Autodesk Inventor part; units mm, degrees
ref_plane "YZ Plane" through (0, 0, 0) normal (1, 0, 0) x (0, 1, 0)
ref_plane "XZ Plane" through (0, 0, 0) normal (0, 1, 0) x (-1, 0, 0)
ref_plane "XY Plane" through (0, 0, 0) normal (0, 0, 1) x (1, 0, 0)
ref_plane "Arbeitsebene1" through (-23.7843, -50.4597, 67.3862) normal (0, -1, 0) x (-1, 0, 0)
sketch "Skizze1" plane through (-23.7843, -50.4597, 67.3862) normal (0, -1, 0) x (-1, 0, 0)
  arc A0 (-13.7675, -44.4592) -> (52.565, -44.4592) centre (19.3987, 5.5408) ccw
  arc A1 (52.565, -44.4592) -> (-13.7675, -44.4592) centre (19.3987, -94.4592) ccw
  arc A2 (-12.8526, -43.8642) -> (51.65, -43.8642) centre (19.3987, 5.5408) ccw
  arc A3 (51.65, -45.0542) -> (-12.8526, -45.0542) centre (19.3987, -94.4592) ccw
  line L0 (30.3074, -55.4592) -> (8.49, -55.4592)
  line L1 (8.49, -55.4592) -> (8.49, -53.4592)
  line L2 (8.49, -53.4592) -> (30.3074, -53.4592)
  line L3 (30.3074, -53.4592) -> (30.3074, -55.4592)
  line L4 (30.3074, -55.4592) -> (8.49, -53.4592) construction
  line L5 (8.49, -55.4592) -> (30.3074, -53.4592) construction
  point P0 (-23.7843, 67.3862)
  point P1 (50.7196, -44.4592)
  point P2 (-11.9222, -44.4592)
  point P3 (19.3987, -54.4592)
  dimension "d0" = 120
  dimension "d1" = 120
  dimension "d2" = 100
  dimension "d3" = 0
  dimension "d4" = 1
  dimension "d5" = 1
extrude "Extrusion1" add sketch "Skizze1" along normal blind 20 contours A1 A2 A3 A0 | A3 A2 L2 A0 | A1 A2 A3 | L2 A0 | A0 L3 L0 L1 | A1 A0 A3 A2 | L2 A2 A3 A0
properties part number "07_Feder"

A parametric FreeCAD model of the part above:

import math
import FreeCAD as App
import Part
import Sketcher

V = App.Vector
Q = App.Units.Quantity

doc = App.newDocument("Part")
body = doc.addObject("PartDesign::Body", "Body")

sketch1 = doc.addObject("Sketcher::SketchObject", "Sketch")
body.addObject(sketch1)
sketch1.AttachmentSupport = (doc.XZ_Plane, [""])
sketch1.MapMode = "FlatFace"
sketch1.AttachmentOffset = App.Placement(V(0, 0, 50.4597), App.Rotation())
sketch1.addGeometry([
    Part.ArcOfCircle(Part.Circle(V(-43.183, 61.8454, 0), V(0, 0, 1), 59.999974), math.radians(56.442728), math.radians(79.524698)),
    Part.LineSegment(V(-32.2743, 120.8454, 0), V(-32.2743, 122.8454, 0)),
    Part.LineSegment(V(-32.2743, 122.8454, 0), V(-54.0917, 122.8454, 0)),
    Part.LineSegment(V(-54.0917, 122.8454, 0), V(-54.0917, 120.8454, 0)),
    Part.ArcOfCircle(Part.Circle(V(-43.183, 61.8454, 0), V(0, 0, 1), 59.999974), math.radians(100.475302), math.radians(123.557351)),
    Part.ArcOfCircle(Part.Circle(V(-43.183, 161.8454, 0), V(0, 0, 1), 60.000029), math.radians(-123.557351), math.radians(-56.442728)),
    Part.ArcOfCircle(Part.Circle(V(-43.183, 161.8454, 0), V(0, 0, 1), 59.000003), math.radians(-122.063791), math.radians(-57.936209)),
    Part.ArcOfCircle(Part.Circle(V(-43.183, 61.8454, 0), V(0, 0, 1), 59.000003), math.radians(57.936209), math.radians(122.063791)),
], False)
sketch1.addConstraint([
    Sketcher.Constraint("Coincident", 0, 2, 1, 1),
    Sketcher.Constraint("Coincident", 1, 2, 2, 1),
    Sketcher.Constraint("Coincident", 2, 2, 3, 1),
    Sketcher.Constraint("Coincident", 3, 2, 4, 1),
    Sketcher.Constraint("Coincident", 4, 2, 5, 1),
    Sketcher.Constraint("Coincident", 5, 2, 0, 1),
    Sketcher.Constraint("Coincident", 6, 1, 7, 2),
    Sketcher.Constraint("Coincident", 7, 1, 6, 2),
    Sketcher.Constraint("Vertical", 1),
    Sketcher.Constraint("Horizontal", 2),
    Sketcher.Constraint("Vertical", 3),
    Sketcher.Constraint("Coincident", 4, 3, 0, 3),
    Sketcher.Constraint("Coincident", 6, 3, 5, 3),
    Sketcher.Constraint("Coincident", 7, 3, 0, 3),
    Sketcher.Constraint("Equal", 0, 4),
    Sketcher.Constraint("Equal", 4, 5),
    Sketcher.Constraint("Equal", 6, 7),
    Sketcher.Constraint("Horizontal", 0, 2, 3, 2),
    Sketcher.Constraint("Horizontal", 4, 2, 5, 2),
    Sketcher.Constraint("Radius", 0, Q("60 mm")),
    Sketcher.Constraint("Radius", 6, Q("59 mm")),
    Sketcher.Constraint("DistanceY", 0, 3, 5, 3, Q("100 mm")),
    Sketcher.Constraint("DistanceY", 1, 1, 1, 2, Q("2 mm")),
    Sketcher.Constraint("DistanceY", 0, 2, 5, 3, Q("41 mm")),
    Sketcher.Constraint("DistanceX", 0, 3, -1, 1, Q("43.183 mm")),
    Sketcher.Constraint("DistanceY", -1, 1, 0, 3, Q("61.8454 mm")),
])
pad1 = doc.addObject("PartDesign::Pad", "Pad")
body.addObject(pad1)
pad1.Profile = sketch1
pad1.Length = 20

doc.recompute()
